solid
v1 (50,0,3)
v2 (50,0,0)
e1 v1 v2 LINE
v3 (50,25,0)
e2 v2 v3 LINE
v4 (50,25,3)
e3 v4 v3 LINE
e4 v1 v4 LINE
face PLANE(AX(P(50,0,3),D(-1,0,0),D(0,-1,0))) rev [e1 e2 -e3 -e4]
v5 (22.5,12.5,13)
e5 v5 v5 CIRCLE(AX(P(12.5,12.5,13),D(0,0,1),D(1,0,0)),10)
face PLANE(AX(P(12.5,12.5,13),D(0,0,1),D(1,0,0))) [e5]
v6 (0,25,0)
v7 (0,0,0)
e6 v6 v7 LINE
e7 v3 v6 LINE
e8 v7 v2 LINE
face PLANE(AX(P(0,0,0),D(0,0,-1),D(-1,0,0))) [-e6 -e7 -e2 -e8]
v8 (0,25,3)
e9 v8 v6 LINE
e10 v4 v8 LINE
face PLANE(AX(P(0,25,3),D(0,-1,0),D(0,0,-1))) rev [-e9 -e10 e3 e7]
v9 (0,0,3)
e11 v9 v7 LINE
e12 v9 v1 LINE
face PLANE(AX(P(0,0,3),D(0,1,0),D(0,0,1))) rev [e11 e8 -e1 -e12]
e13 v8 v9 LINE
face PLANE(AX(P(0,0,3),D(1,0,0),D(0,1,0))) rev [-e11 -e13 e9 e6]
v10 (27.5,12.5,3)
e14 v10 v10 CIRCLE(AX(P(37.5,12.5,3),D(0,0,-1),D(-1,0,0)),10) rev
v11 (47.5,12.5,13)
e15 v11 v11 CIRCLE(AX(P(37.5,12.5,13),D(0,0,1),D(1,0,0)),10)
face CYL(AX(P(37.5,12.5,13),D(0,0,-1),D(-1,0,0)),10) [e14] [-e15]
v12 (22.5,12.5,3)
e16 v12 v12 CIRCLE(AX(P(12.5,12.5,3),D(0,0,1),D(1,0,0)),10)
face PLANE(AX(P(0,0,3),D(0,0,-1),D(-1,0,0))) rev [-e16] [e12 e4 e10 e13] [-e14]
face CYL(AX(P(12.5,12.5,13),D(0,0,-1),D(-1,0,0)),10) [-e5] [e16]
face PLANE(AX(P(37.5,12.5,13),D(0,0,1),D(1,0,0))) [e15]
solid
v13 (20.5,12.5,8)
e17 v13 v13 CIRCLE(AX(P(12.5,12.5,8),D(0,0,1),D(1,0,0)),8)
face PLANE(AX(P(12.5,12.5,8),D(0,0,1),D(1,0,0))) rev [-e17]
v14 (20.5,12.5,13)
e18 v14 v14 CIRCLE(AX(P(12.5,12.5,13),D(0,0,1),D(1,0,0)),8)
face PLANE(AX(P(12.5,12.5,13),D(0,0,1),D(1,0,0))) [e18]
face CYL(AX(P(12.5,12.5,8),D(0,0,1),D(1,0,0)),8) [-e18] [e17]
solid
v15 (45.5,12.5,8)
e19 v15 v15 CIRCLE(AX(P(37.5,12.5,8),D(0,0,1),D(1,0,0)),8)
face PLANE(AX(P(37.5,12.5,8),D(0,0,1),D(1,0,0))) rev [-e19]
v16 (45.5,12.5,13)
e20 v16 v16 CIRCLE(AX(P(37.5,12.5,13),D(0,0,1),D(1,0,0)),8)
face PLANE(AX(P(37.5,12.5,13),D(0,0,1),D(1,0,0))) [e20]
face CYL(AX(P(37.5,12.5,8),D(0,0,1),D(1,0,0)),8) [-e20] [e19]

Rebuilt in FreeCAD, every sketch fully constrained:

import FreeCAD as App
import Part
import Sketcher

V = App.Vector


def add_polygon(sketch, points):
    """Adds a closed chain of lines whose ends are joined by coincident constraints."""
    first, n = sketch.GeometryCount, len(points)
    for a, b in zip(points, points[1:] + points[:1]):
        sketch.addGeometry(Part.LineSegment(App.Vector(*a, 0), App.Vector(*b, 0)), False)
    for i in range(n):
        sketch.addConstraint(Sketcher.Constraint("Coincident", first + i, 2, first + (i + 1) % n, 1))

doc = App.newDocument("Part")
body = doc.addObject("PartDesign::Body", "Body")

# Sketch on XY plane
sketch1 = body.newObject("Sketcher::SketchObject", "Sketch")
sketch1.AttachmentSupport = (doc.getObject("XY_Plane"), [""])
sketch1.MapMode = "FlatFace"
add_polygon(sketch1, [(0, 25), (0, 0), (50, 0), (50, 25)])  # lines 0-3
sketch1.addConstraint(Sketcher.Constraint("Vertical", 0))
sketch1.addConstraint(Sketcher.Constraint("Horizontal", 1))
sketch1.addConstraint(Sketcher.Constraint("Vertical", 2))
sketch1.addConstraint(Sketcher.Constraint("Horizontal", 3))
sketch1.addConstraint(Sketcher.Constraint("Coincident", 0, 2, -1, 1))
sketch1.addConstraint(Sketcher.Constraint("DistanceX", 1, 1, 1, 2, 50.0))
sketch1.addConstraint(Sketcher.Constraint("DistanceY", 0, 2, 0, 1, 25.0))
pad1 = body.newObject("PartDesign::Pad", "Pad")
pad1.Profile = sketch1
pad1.Length = 3

# Sketch on XY plane
sketch2 = body.newObject("Sketcher::SketchObject", "Sketch001")
sketch2.AttachmentSupport = (doc.getObject("XY_Plane"), [""])
sketch2.MapMode = "FlatFace"
sketch2.AttachmentOffset = App.Placement(V(0, 0, 3), App.Rotation())
sketch2.addGeometry(Part.Circle(V(12.5, 12.5, 0), V(0, 0, 1), 10), False)
sketch2.addGeometry(Part.Circle(V(37.5, 12.5, 0), V(0, 0, 1), 10), False)
sketch2.addConstraint(Sketcher.Constraint("Equal", 0, 1))
sketch2.addConstraint(Sketcher.Constraint("Horizontal", 0, 3, 1, 3))
sketch2.addConstraint(Sketcher.Constraint("Diameter", 0, 20.0))
sketch2.addConstraint(Sketcher.Constraint("DistanceX", 0, 3, 1, 3, 25.0))
sketch2.addConstraint(Sketcher.Constraint("DistanceX", -1, 1, 0, 3, 12.5))
sketch2.addConstraint(Sketcher.Constraint("DistanceY", -1, 1, 0, 3, 12.5))
pad2 = body.newObject("PartDesign::Pad", "Pad001")
pad2.Profile = sketch2
pad2.Length = 10
body2 = doc.addObject("PartDesign::Body", "Body001")

# Sketch on XY plane
sketch3 = body2.newObject("Sketcher::SketchObject", "Sketch002")
sketch3.AttachmentSupport = (doc.getObject("XY_Plane001"), [""])
sketch3.MapMode = "FlatFace"
sketch3.AttachmentOffset = App.Placement(V(0, 0, 13), App.Rotation())
sketch3.addGeometry(Part.Circle(V(12.5, 12.5, 0), V(0, 0, 1), 8), False)
sketch3.addConstraint(Sketcher.Constraint("Diameter", 0, 16.0))
sketch3.addConstraint(Sketcher.Constraint("DistanceX", -1, 1, 0, 3, 12.5))
sketch3.addConstraint(Sketcher.Constraint("DistanceY", -1, 1, 0, 3, 12.5))
pad3 = body2.newObject("PartDesign::Pad", "Pad002")
pad3.Profile = sketch3
pad3.Length = 5
pad3.Reversed = True
body3 = doc.addObject("PartDesign::Body", "Body002")

# Sketch on XY plane
sketch4 = body3.newObject("Sketcher::SketchObject", "Sketch003")
sketch4.AttachmentSupport = (doc.getObject("XY_Plane002"), [""])
sketch4.MapMode = "FlatFace"
sketch4.AttachmentOffset = App.Placement(V(0, 0, 13), App.Rotation())
sketch4.addGeometry(Part.Circle(V(37.5, 12.5, 0), V(0, 0, 1), 8), False)
sketch4.addConstraint(Sketcher.Constraint("Diameter", 0, 16.0))
sketch4.addConstraint(Sketcher.Constraint("DistanceX", -1, 1, 0, 3, 37.5))
sketch4.addConstraint(Sketcher.Constraint("DistanceY", -1, 1, 0, 3, 12.5))
pad4 = body3.newObject("PartDesign::Pad", "Pad003")
pad4.Profile = sketch4
pad4.Length = 5
pad4.Reversed = True

doc.recompute()
